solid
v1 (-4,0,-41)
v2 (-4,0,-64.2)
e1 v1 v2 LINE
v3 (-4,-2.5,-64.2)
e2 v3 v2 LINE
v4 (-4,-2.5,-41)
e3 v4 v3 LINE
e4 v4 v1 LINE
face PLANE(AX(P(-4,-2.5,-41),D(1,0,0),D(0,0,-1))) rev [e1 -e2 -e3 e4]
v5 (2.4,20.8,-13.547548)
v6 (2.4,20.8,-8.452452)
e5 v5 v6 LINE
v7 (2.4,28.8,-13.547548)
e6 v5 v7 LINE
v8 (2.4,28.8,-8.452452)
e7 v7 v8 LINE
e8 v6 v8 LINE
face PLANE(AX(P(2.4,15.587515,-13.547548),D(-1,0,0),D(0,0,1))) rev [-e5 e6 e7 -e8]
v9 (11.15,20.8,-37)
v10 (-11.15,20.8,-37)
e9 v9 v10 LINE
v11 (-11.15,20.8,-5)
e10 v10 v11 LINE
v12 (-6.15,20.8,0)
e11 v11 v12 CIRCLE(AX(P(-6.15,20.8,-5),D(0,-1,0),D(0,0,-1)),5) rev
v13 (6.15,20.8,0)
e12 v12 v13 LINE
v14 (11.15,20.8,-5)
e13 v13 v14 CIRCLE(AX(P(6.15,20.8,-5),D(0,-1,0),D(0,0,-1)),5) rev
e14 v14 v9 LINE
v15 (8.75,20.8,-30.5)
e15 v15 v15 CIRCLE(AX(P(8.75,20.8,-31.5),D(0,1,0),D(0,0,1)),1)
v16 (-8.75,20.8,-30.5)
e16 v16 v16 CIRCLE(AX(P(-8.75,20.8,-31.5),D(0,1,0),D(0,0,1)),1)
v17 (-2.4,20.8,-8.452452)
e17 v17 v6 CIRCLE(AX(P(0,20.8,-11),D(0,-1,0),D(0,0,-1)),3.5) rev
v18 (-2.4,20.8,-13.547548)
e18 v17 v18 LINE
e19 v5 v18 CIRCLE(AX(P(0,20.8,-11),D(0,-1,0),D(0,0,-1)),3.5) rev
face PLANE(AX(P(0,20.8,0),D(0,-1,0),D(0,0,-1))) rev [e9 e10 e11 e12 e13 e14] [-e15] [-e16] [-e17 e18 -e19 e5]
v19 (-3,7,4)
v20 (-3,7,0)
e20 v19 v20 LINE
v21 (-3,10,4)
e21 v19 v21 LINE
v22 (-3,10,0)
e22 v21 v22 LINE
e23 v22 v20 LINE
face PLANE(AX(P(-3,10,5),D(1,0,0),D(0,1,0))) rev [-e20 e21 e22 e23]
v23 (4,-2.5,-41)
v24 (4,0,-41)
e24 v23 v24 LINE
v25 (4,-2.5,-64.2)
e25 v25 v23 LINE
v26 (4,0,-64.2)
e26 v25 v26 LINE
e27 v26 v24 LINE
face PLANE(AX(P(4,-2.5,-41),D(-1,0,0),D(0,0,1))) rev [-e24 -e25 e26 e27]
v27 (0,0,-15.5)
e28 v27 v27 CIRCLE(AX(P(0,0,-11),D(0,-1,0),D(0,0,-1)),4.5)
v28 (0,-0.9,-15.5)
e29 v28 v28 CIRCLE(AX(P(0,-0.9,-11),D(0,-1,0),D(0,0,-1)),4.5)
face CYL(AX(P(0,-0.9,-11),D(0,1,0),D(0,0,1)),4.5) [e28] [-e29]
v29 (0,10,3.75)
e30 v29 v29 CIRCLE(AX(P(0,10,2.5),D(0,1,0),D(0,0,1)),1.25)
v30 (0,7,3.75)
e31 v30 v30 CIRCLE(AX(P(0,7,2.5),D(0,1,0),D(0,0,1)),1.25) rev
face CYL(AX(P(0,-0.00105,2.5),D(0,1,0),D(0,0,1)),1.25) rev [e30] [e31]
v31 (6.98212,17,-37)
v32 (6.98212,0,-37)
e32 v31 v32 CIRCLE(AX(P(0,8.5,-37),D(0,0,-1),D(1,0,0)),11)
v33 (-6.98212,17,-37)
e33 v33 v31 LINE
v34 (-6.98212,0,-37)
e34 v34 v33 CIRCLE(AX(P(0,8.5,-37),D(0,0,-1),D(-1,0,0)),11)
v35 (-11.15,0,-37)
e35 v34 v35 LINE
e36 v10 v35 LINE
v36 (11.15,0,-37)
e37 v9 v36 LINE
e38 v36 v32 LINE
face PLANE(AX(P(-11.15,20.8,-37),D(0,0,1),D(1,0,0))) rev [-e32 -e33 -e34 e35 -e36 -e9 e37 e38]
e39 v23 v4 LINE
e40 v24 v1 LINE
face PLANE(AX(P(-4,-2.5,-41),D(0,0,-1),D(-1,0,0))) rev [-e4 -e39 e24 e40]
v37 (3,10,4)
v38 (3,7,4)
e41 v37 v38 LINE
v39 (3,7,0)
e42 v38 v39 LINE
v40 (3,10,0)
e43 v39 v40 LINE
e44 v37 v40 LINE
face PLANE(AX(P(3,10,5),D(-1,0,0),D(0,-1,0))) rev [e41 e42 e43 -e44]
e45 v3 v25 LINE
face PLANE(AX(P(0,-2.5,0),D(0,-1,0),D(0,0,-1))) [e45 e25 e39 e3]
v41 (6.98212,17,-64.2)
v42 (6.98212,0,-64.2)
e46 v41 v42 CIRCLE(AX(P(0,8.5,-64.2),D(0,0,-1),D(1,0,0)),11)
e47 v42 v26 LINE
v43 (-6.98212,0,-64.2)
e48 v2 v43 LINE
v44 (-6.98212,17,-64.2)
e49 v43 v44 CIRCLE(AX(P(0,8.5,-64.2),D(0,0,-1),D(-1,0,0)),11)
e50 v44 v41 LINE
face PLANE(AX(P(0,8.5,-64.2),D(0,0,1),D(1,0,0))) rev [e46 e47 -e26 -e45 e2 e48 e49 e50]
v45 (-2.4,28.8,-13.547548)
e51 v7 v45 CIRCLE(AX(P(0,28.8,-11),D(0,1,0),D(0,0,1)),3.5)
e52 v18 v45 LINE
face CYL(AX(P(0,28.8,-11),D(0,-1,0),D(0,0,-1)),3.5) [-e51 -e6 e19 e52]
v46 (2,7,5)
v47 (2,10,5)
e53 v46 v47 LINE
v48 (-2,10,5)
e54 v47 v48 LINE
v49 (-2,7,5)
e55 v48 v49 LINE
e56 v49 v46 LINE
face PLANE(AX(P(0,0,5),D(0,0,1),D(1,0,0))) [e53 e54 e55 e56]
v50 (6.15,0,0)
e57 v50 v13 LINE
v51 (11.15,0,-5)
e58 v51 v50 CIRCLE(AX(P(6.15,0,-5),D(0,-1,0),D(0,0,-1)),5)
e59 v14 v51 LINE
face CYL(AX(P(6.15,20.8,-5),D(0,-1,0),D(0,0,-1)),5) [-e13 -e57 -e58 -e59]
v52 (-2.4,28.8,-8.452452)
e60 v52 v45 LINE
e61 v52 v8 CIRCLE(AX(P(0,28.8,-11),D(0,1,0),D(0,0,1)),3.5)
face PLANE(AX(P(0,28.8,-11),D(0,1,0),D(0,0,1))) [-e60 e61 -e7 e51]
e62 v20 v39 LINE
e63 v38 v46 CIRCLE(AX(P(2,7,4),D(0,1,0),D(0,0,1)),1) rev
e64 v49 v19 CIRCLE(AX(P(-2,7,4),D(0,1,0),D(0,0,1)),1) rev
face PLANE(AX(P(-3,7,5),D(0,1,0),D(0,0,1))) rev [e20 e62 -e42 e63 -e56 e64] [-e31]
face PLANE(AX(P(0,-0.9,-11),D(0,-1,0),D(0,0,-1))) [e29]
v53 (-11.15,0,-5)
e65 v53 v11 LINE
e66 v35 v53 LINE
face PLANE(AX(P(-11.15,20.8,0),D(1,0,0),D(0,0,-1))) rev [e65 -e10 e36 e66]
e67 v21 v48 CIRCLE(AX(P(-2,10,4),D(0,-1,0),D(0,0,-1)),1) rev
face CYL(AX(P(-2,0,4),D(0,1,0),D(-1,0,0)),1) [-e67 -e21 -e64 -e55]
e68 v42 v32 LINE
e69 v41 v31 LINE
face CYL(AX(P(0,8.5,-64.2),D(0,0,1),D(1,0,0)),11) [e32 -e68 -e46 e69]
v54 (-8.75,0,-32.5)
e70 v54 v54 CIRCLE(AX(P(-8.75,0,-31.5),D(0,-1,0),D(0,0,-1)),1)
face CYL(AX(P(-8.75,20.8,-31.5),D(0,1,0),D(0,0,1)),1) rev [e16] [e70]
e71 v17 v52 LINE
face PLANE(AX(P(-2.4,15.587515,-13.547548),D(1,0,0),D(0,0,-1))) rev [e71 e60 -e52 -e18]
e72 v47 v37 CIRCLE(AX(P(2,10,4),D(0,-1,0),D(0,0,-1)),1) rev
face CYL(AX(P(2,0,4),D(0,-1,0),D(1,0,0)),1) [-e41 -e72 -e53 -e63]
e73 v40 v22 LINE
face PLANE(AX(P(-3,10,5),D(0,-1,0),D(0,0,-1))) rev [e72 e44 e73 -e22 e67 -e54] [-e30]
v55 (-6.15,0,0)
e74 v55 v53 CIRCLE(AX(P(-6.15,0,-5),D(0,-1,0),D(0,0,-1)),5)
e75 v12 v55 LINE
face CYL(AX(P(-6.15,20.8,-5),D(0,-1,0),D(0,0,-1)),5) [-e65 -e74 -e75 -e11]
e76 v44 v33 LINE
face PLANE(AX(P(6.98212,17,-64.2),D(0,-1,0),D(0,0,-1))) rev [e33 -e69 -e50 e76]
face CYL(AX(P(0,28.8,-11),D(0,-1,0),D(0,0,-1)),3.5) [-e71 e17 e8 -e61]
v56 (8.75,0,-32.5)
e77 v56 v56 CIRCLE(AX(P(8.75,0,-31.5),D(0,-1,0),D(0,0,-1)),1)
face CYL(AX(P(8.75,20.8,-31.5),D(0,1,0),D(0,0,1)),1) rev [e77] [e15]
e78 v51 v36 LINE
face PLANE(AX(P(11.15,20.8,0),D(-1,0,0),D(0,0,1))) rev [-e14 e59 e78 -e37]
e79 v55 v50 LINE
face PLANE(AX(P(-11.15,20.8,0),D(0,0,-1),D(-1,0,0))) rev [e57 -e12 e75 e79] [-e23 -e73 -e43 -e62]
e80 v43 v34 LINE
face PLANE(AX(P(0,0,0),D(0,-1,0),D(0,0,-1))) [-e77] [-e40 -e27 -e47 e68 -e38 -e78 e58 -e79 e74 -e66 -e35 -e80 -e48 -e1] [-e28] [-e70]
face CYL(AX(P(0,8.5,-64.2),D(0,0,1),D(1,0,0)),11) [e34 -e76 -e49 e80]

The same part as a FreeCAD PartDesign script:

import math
import FreeCAD as App
import Part
import Sketcher
Q = App.Units.Quantity


def edges_at(feature, points):
    """Names of the edges that pass closest to the given points."""
    edges = feature.Shape.Edges
    near = lambda p: min(range(len(edges)), key=lambda i: edges[i].distToShape(Part.Vertex(*p))[0])
    return sorted({f"Edge{near(p) + 1}" for p in points})

doc = App.newDocument("Part")
params = doc.addObject("Spreadsheet::Sheet", "Params")
for row, (alias, value) in enumerate([
    ("sketch1_height", "37 mm"),
    ("sketch1_width", "22.3 mm"),
    ("pad1_length", "20.8 mm"),
    ("fillet_radius", "5 mm"),
    ("sketch2_radius", "11 mm"),
    ("pad2_length", "27.2 mm"),
    ("sketch3_diameter", "7 mm"),
    ("pad3_length", "8 mm"),
    ("sketch4_radius", "3.5 mm"),
    ("pocket1_length", "8 mm"),
    ("sketch5_width", "6 mm"),
    ("sketch5_height", "3 mm"),
    ("pad4_length", "5 mm"),
    ("sketch6_diameter", "2.5 mm"),
    ("fillet2_radius", "1 mm"),
    ("sketch7_diameter", "2 mm"),
    ("hole_diameter", "2 mm"),
    ("sketch8_width", "8 mm"),
    ("sketch8_height", "23.2 mm"),
    ("pad5_length", "2.5 mm"),
    ("sketch9_diameter", "9 mm"),
    ("pad6_length", "0.9 mm"),
], start=1):
    params.set(f"A{row}", alias)
    params.set(f"B{row}", "=" + value)
    params.setAlias(f"B{row}", alias)

body = doc.addObject("PartDesign::Body", "Body")

# Sketch on XZ plane
sketch1 = doc.addObject("Sketcher::SketchObject", "Sketch")
body.addObject(sketch1)
sketch1.AttachmentSupport = (doc.XZ_Plane, [""])
sketch1.MapMode = "FlatFace"
sketch1.addGeometry(Part.LineSegment(App.Vector(-11, -37, 0), App.Vector(-11, 0, 0)), False)
sketch1.addGeometry(Part.LineSegment(App.Vector(-11, 0, 0), App.Vector(11, 0, 0)), False)
sketch1.addGeometry(Part.LineSegment(App.Vector(11, 0, 0), App.Vector(11, -37, 0)), False)
sketch1.addGeometry(Part.LineSegment(App.Vector(11, -37, 0), App.Vector(-11, -37, 0)), False)
sketch1.addConstraint(Sketcher.Constraint("Coincident", 0, 2, 1, 1))
sketch1.addConstraint(Sketcher.Constraint("Coincident", 1, 2, 2, 1))
sketch1.addConstraint(Sketcher.Constraint("Coincident", 2, 2, 3, 1))
sketch1.addConstraint(Sketcher.Constraint("Coincident", 3, 2, 0, 1))
sketch1.addConstraint(Sketcher.Constraint("Vertical", 0))
sketch1.addConstraint(Sketcher.Constraint("Horizontal", 1))
sketch1.addConstraint(Sketcher.Constraint("Vertical", 2))
sketch1.addConstraint(Sketcher.Constraint("Horizontal", 3))
sketch1.addConstraint(Sketcher.Constraint("Symmetric", 0, 2, 1, 2, -1, 1))
sketch1.addConstraint(Sketcher.Constraint("DistanceY", 0, 1, 0, 2, Q("37 mm")))
sketch1.addConstraint(Sketcher.Constraint("DistanceX", 1, 1, 1, 2, Q("22.3 mm")))
sketch1.setExpression("Constraints[9]", "Params.sketch1_height")
sketch1.setExpression("Constraints[10]", "Params.sketch1_width")
pad1 = doc.addObject("PartDesign::Pad", "Pad")
body.addObject(pad1)
pad1.Profile = sketch1
pad1.setExpression("Length", "Params.pad1_length")
pad1.Reversed = True
doc.recompute()

fillet = doc.addObject("PartDesign::Fillet", "Fillet")
body.addObject(fillet)
fillet.Base = (pad1, edges_at(pad1, [(11.15, 10.4, 0), (-11.15, 10.4, 0)]))
fillet.setExpression("Radius", "Params.fillet_radius")

# Sketch on XY plane
sketch2 = doc.addObject("Sketcher::SketchObject", "Sketch001")
body.addObject(sketch2)
sketch2.AttachmentSupport = (doc.XY_Plane, [""])
sketch2.MapMode = "FlatFace"
sketch2.AttachmentOffset = App.Placement(App.Vector(0, 0, -37), App.Rotation())
sketch2.addGeometry(Part.LineSegment(App.Vector(7, 0, 0), App.Vector(-7, 0, 0)), False)
sketch2.addGeometry(Part.ArcOfCircle(Part.Circle(App.Vector(0, 8, 0), App.Vector(0, 0, 1), 11), math.radians(129), math.radians(231)), False)
sketch2.addGeometry(Part.LineSegment(App.Vector(-7, 17, 0), App.Vector(7, 17, 0)), False)
sketch2.addGeometry(Part.ArcOfCircle(Part.Circle(App.Vector(0, 8, 0), App.Vector(0, 0, 1), 11), math.radians(-51), math.radians(51)), False)
sketch2.addConstraint(Sketcher.Constraint("Coincident", 0, 2, 1, 2))
sketch2.addConstraint(Sketcher.Constraint("Coincident", 1, 1, 2, 1))
sketch2.addConstraint(Sketcher.Constraint("Coincident", 2, 2, 3, 2))
sketch2.addConstraint(Sketcher.Constraint("Coincident", 3, 1, 0, 1))
sketch2.addConstraint(Sketcher.Constraint("Horizontal", 0))
sketch2.addConstraint(Sketcher.Constraint("Horizontal", 2))
sketch2.addConstraint(Sketcher.Constraint("Coincident", 3, 3, 1, 3))
sketch2.addConstraint(Sketcher.Constraint("Equal", 1, 3))
sketch2.addConstraint(Sketcher.Constraint("Symmetric", 0, 2, 3, 1, -1, 1))
sketch2.addConstraint(Sketcher.Constraint("Vertical", 0, 2, 1, 1))
sketch2.addConstraint(Sketcher.Constraint("Radius", 1, Q("11 mm")))
sketch2.addConstraint(Sketcher.Constraint("DistanceY", -1, 1, 1, 1, Q("17 mm")))
sketch2.setExpression("Constraints[10]", "Params.sketch2_radius")
pad2 = doc.addObject("PartDesign::Pad", "Pad001")
body.addObject(pad2)
pad2.Profile = sketch2
pad2.setExpression("Length", "Params.pad2_length")
pad2.Reversed = True

# Sketch on XZ plane
sketch3 = doc.addObject("Sketcher::SketchObject", "Sketch002")
body.addObject(sketch3)
sketch3.AttachmentSupport = (doc.XZ_Plane, [""])
sketch3.MapMode = "FlatFace"
sketch3.AttachmentOffset = App.Placement(App.Vector(0, 0, -20.8), App.Rotation())
sketch3.addGeometry(Part.Circle(App.Vector(0, -11, 0), App.Vector(0, 0, 1), 3.5), False)
sketch3.addConstraint(Sketcher.Constraint("PointOnObject", 0, 3, -2))
sketch3.addConstraint(Sketcher.Constraint("Diameter", 0, Q("7 mm")))
sketch3.addConstraint(Sketcher.Constraint("DistanceY", 0, 3, -1, 1, Q("11 mm")))
sketch3.setExpression("Constraints[1]", "Params.sketch3_diameter")
pad3 = doc.addObject("PartDesign::Pad", "Pad002")
body.addObject(pad3)
pad3.Profile = sketch3
pad3.setExpression("Length", "Params.pad3_length")
pad3.Reversed = True

# Sketch on XZ plane
sketch4 = doc.addObject("Sketcher::SketchObject", "Sketch003")
body.addObject(sketch4)
sketch4.AttachmentSupport = (doc.XZ_Plane, [""])
sketch4.MapMode = "FlatFace"
sketch4.AttachmentOffset = App.Placement(App.Vector(0, 0, -20.8), App.Rotation())
sketch4.addGeometry(Part.LineSegment(App.Vector(-2.4, -8.5, 0), App.Vector(-2.4, -13.5, 0)), False)
sketch4.addGeometry(Part.ArcOfCircle(Part.Circle(App.Vector(0, -11, 0), App.Vector(0, 0, 1), 3.5), math.radians(133), math.radians(227)), False)
sketch4.addGeometry(Part.LineSegment(App.Vector(2.4, -13.5, 0), App.Vector(2.4, -8.5, 0)), False)
sketch4.addGeometry(Part.ArcOfCircle(Part.Circle(App.Vector(0, -11, 0), App.Vector(0, 0, 1), 3.5), math.radians(-47), math.radians(47)), False)
sketch4.addConstraint(Sketcher.Constraint("Coincident", 0, 1, 1, 1))
sketch4.addConstraint(Sketcher.Constraint("Coincident", 1, 2, 0, 2))
sketch4.addConstraint(Sketcher.Constraint("Coincident", 2, 1, 3, 1))
sketch4.addConstraint(Sketcher.Constraint("Coincident", 3, 2, 2, 2))
sketch4.addConstraint(Sketcher.Constraint("Vertical", 0))
sketch4.addConstraint(Sketcher.Constraint("Vertical", 2))
sketch4.addConstraint(Sketcher.Constraint("Coincident", 3, 3, 1, 3))
sketch4.addConstraint(Sketcher.Constraint("Equal", 1, 3))
sketch4.addConstraint(Sketcher.Constraint("Symmetric", 1, 2, 2, 1, -2))
sketch4.addConstraint(Sketcher.Constraint("Radius", 1, Q("3.5 mm")))
sketch4.addConstraint(Sketcher.Constraint("DistanceY", 1, 3, -1, 1, Q("11 mm")))
sketch4.addConstraint(Sketcher.Constraint("DistanceX", 0, 1, -1, 1, Q("2.4 mm")))
sketch4.setExpression("Constraints[9]", "Params.sketch4_radius")
pocket1 = doc.addObject("PartDesign::Pocket", "Pocket")
body.addObject(pocket1)
pocket1.Profile = sketch4
pocket1.setExpression("Length", "Params.pocket1_length")

# Sketch on XY plane
sketch5 = doc.addObject("Sketcher::SketchObject", "Sketch004")
body.addObject(sketch5)
sketch5.AttachmentSupport = (doc.XY_Plane, [""])
sketch5.MapMode = "FlatFace"
sketch5.addGeometry(Part.LineSegment(App.Vector(-3, 10, 0), App.Vector(-3, 7, 0)), False)
sketch5.addGeometry(Part.LineSegment(App.Vector(-3, 7, 0), App.Vector(3, 7, 0)), False)
sketch5.addGeometry(Part.LineSegment(App.Vector(3, 7, 0), App.Vector(3, 10, 0)), False)
sketch5.addGeometry(Part.LineSegment(App.Vector(3, 10, 0), App.Vector(-3, 10, 0)), False)
sketch5.addConstraint(Sketcher.Constraint("Coincident", 0, 2, 1, 1))
sketch5.addConstraint(Sketcher.Constraint("Coincident", 1, 2, 2, 1))
sketch5.addConstraint(Sketcher.Constraint("Coincident", 2, 2, 3, 1))
sketch5.addConstraint(Sketcher.Constraint("Coincident", 3, 2, 0, 1))
sketch5.addConstraint(Sketcher.Constraint("Vertical", 0))
sketch5.addConstraint(Sketcher.Constraint("Horizontal", 1))
sketch5.addConstraint(Sketcher.Constraint("Vertical", 2))
sketch5.addConstraint(Sketcher.Constraint("Horizontal", 3))
sketch5.addConstraint(Sketcher.Constraint("DistanceX", 1, 1, 1, 2, Q("6 mm")))
sketch5.addConstraint(Sketcher.Constraint("DistanceY", 0, 2, 0, 1, Q("3 mm")))
sketch5.addConstraint(Sketcher.Constraint("DistanceX", 0, 2, -1, 1, Q("3 mm")))
sketch5.addConstraint(Sketcher.Constraint("DistanceY", -1, 1, 0, 2, Q("7 mm")))
sketch5.setExpression("Constraints[8]", "Params.sketch5_width")
sketch5.setExpression("Constraints[9]", "Params.sketch5_height")
pad4 = doc.addObject("PartDesign::Pad", "Pad003")
body.addObject(pad4)
pad4.Profile = sketch5
pad4.setExpression("Length", "Params.pad4_length")

# Sketch on XZ plane
sketch6 = doc.addObject("Sketcher::SketchObject", "Sketch005")
body.addObject(sketch6)
sketch6.AttachmentSupport = (doc.XZ_Plane, [""])
sketch6.MapMode = "FlatFace"
sketch6.AttachmentOffset = App.Placement(App.Vector(0, 0, -10), App.Rotation())
sketch6.addGeometry(Part.Circle(App.Vector(0, 2.5, 0), App.Vector(0, 0, 1), 1.2), False)
sketch6.addConstraint(Sketcher.Constraint("PointOnObject", 0, 3, -2))
sketch6.addConstraint(Sketcher.Constraint("Diameter", 0, Q("2.5 mm")))
sketch6.addConstraint(Sketcher.Constraint("DistanceY", -1, 1, 0, 3, Q("2.5 mm")))
sketch6.setExpression("Constraints[1]", "Params.sketch6_diameter")
pocket2 = doc.addObject("PartDesign::Pocket", "Pocket001")
body.addObject(pocket2)
pocket2.Profile = sketch6
pocket2.Type = "UpToFirst"
pocket2.Reversed = True
doc.recompute()

fillet2 = doc.addObject("PartDesign::Fillet", "Fillet001")
body.addObject(fillet2)
fillet2.Base = (pocket2, edges_at(pocket2, [(3, 8.5, 5), (-3, 8.5, 5)]))
fillet2.setExpression("Radius", "Params.fillet2_radius")

# Sketch on XZ plane
sketch7 = doc.addObject("Sketcher::SketchObject", "Sketch006")
body.addObject(sketch7)
sketch7.AttachmentSupport = (doc.XZ_Plane, [""])
sketch7.MapMode = "FlatFace"
sketch7.AttachmentOffset = App.Placement(App.Vector(0, 0, -20.8), App.Rotation())
sketch7.addGeometry(Part.Circle(App.Vector(-8.8, -31.5, 0), App.Vector(0, 0, 1), 1), False)
sketch7.addGeometry(Part.Circle(App.Vector(8.8, -31.5, 0), App.Vector(0, 0, 1), 1), False)
sketch7.addConstraint(Sketcher.Constraint("Equal", 0, 1))
sketch7.addConstraint(Sketcher.Constraint("Symmetric", 0, 3, 1, 3, -2))
sketch7.addConstraint(Sketcher.Constraint("Diameter", 0, Q("2 mm")))
sketch7.addConstraint(Sketcher.Constraint("DistanceY", 0, 3, -1, 1, Q("31.5 mm")))
sketch7.addConstraint(Sketcher.Constraint("DistanceX", 0, 3, 1, 3, Q("17.5 mm")))
sketch7.setExpression("Constraints[2]", "Params.sketch7_diameter")
doc.recompute()
hole = doc.addObject("PartDesign::Hole", "Hole")
body.addObject(hole)
hole.Profile = sketch7
hole.ThreadType = "None"
hole.setExpression("Diameter", "Params.hole_diameter")
hole.DepthType = "ThroughAll"
hole.Reversed = True

# Sketch on XZ plane
sketch8 = doc.addObject("Sketcher::SketchObject", "Sketch007")
body.addObject(sketch8)
sketch8.AttachmentSupport = (doc.XZ_Plane, [""])
sketch8.MapMode = "FlatFace"
sketch8.addGeometry(Part.LineSegment(App.Vector(-4, -41, 0), App.Vector(-4, -64, 0)), False)
sketch8.addGeometry(Part.LineSegment(App.Vector(-4, -64, 0), App.Vector(4, -64, 0)), False)
sketch8.addGeometry(Part.LineSegment(App.Vector(4, -64, 0), App.Vector(4, -41, 0)), False)
sketch8.addGeometry(Part.LineSegment(App.Vector(4, -41, 0), App.Vector(-4, -41, 0)), False)
sketch8.addConstraint(Sketcher.Constraint("Coincident", 0, 2, 1, 1))
sketch8.addConstraint(Sketcher.Constraint("Coincident", 1, 2, 2, 1))
sketch8.addConstraint(Sketcher.Constraint("Coincident", 2, 2, 3, 1))
sketch8.addConstraint(Sketcher.Constraint("Coincident", 3, 2, 0, 1))
sketch8.addConstraint(Sketcher.Constraint("Vertical", 0))
sketch8.addConstraint(Sketcher.Constraint("Horizontal", 1))
sketch8.addConstraint(Sketcher.Constraint("Vertical", 2))
sketch8.addConstraint(Sketcher.Constraint("Horizontal", 3))
sketch8.addConstraint(Sketcher.Constraint("DistanceX", 1, 1, 1, 2, Q("8 mm")))
sketch8.addConstraint(Sketcher.Constraint("DistanceY", 0, 2, 0, 1, Q("23.2 mm")))
sketch8.addConstraint(Sketcher.Constraint("DistanceX", 0, 2, -1, 1, Q("4 mm")))
sketch8.addConstraint(Sketcher.Constraint("DistanceY", 2, 2, -1, 1, Q("41 mm")))
sketch8.setExpression("Constraints[8]", "Params.sketch8_width")
sketch8.setExpression("Constraints[9]", "Params.sketch8_height")
pad5 = doc.addObject("PartDesign::Pad", "Pad004")
body.addObject(pad5)
pad5.Profile = sketch8
pad5.setExpression("Length", "Params.pad5_length")

# Sketch on XZ plane
sketch9 = doc.addObject("Sketcher::SketchObject", "Sketch008")
body.addObject(sketch9)
sketch9.AttachmentSupport = (doc.XZ_Plane, [""])
sketch9.MapMode = "FlatFace"
sketch9.addGeometry(Part.Circle(App.Vector(0, -11, 0), App.Vector(0, 0, 1), 4.5), False)
sketch9.addConstraint(Sketcher.Constraint("PointOnObject", 0, 3, -2))
sketch9.addConstraint(Sketcher.Constraint("Diameter", 0, Q("9 mm")))
sketch9.addConstraint(Sketcher.Constraint("DistanceY", 0, 3, -1, 1, Q("11 mm")))
sketch9.setExpression("Constraints[1]", "Params.sketch9_diameter")
pad6 = doc.addObject("PartDesign::Pad", "Pad005")
body.addObject(pad6)
pad6.Profile = sketch9
pad6.setExpression("Length", "Params.pad6_length")

doc.recompute()
